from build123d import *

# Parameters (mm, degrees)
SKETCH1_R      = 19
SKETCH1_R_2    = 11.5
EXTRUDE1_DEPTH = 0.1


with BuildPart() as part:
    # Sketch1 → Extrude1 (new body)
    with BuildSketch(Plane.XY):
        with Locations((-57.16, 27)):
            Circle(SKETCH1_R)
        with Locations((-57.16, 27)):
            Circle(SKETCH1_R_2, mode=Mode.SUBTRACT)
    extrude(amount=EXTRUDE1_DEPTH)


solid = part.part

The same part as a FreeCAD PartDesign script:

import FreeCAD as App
import Part
import Sketcher

V = App.Vector

doc = App.newDocument("Part")
params = doc.addObject("Spreadsheet::Sheet", "Params")
for row, (alias, value) in enumerate([
    ("sketch1_diameter", "38 mm"),
    ("sketch1_diameter2", "23 mm"),
    ("pad1_length", "0.1 mm"),
], start=1):
    params.set(f"A{row}", alias)
    params.set(f"B{row}", "=" + value)
    params.setAlias(f"B{row}", alias)

body = doc.addObject("PartDesign::Body", "Body")

# Sketch on XY plane
sketch1 = body.newObject("Sketcher::SketchObject", "Sketch")
sketch1.AttachmentSupport = (doc.getObject("XY_Plane"), [""])
sketch1.MapMode = "FlatFace"
sketch1.addGeometry(Part.Circle(V(-57, 27, 0), V(0, 0, 1), 19), False)
sketch1.addGeometry(Part.Circle(V(-57, 27, 0), V(0, 0, 1), 12), False)
sketch1.addConstraint(Sketcher.Constraint("Coincident", 1, 3, 0, 3))
sketch1.addConstraint(Sketcher.Constraint("Diameter", 0, 38.0))
sketch1.addConstraint(Sketcher.Constraint("Diameter", 1, 23.0))
sketch1.addConstraint(Sketcher.Constraint("DistanceY", -1, 1, 0, 3, 27.0))
sketch1.addConstraint(Sketcher.Constraint("DistanceX", 0, 3, -1, 1, 57.16))
sketch1.setExpression("Constraints[1]", "Params.sketch1_diameter")
sketch1.setExpression("Constraints[2]", "Params.sketch1_diameter2")
pad1 = body.newObject("PartDesign::Pad", "Pad")
pad1.Profile = sketch1
pad1.setExpression("Length", "Params.pad1_length")

doc.recompute()
